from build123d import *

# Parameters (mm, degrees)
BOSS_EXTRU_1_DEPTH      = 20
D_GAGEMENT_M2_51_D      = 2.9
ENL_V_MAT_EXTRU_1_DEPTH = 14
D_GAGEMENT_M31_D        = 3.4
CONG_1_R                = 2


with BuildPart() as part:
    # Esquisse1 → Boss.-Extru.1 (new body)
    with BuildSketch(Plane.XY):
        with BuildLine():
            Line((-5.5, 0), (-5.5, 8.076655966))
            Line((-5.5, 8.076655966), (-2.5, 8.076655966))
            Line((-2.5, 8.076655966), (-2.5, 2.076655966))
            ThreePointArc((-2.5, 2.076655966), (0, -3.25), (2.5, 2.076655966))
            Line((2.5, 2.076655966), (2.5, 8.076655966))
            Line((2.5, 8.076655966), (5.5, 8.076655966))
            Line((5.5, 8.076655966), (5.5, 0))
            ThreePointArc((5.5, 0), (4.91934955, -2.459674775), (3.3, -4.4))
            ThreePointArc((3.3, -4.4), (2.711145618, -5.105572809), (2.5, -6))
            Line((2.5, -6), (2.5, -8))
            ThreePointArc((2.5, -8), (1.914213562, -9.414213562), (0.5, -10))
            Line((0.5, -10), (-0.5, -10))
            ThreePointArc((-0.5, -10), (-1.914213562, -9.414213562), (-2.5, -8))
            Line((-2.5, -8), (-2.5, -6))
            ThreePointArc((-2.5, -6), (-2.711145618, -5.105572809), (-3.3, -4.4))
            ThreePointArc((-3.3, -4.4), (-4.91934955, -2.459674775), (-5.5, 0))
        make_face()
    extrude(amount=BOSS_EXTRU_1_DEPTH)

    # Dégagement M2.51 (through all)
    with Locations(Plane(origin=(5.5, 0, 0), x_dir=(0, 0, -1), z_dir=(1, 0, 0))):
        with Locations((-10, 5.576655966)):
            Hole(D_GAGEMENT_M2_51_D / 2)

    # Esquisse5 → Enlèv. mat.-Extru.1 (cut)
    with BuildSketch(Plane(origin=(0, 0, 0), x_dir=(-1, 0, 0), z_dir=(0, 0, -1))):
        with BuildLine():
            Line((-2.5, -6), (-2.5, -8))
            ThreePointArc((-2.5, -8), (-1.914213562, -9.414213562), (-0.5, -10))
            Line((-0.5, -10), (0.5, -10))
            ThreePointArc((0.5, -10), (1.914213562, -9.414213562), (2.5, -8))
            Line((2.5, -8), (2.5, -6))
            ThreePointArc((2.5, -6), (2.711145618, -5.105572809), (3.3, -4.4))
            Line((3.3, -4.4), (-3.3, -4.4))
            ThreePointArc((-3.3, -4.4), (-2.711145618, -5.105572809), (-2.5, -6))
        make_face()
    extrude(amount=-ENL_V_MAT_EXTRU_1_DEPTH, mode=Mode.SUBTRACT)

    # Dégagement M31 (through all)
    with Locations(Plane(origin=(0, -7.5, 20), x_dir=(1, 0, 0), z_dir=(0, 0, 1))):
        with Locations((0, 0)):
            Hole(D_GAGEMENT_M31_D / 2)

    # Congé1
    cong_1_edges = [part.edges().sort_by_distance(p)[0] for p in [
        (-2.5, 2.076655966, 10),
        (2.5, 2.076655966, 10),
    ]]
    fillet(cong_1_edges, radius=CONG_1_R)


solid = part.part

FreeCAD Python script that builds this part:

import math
import FreeCAD as App
import Part
import Sketcher
Q = App.Units.Quantity


def edges_at(feature, points):
    """Names of the edges that pass closest to the given points."""
    edges = feature.Shape.Edges
    near = lambda p: min(range(len(edges)), key=lambda i: edges[i].distToShape(Part.Vertex(*p))[0])
    return sorted({f"Edge{near(p) + 1}" for p in points})

doc = App.newDocument("Part")
params = doc.addObject("Spreadsheet::Sheet", "Params")
for row, (alias, value) in enumerate([
    ("sketch1_radius", "2 mm"),
    ("sketch1_radius2", "5.5 mm"),
    ("sketch1_width", "1 mm"),
    ("sketch1_height", "2 mm"),
    ("sketch1_height2", "6 mm"),
    ("pad1_length", "20 mm"),
    ("sketch2_diameter", "2.9 mm"),
    ("hole_diameter", "2.9 mm"),
    ("sketch3_radius", "2 mm"),
    ("sketch3_width", "1 mm"),
    ("sketch3_height", "2 mm"),
    ("sketch3_width2", "6.6 mm"),
    ("pocket1_length", "14 mm"),
    ("sketch4_diameter", "3.4 mm"),
    ("hole2_diameter", "3.4 mm"),
    ("fillet_radius", "2 mm"),
], start=1):
    params.set(f"A{row}", alias)
    params.set(f"B{row}", "=" + value)
    params.setAlias(f"B{row}", alias)

body = doc.addObject("PartDesign::Body", "Body")

# Sketch on XY plane
sketch1 = body.newObject("Sketcher::SketchObject", "Sketch")
sketch1.AttachmentSupport = (doc.getObject("XY_Plane"), [""])
sketch1.MapMode = "FlatFace"
sketch1.addGeometry([
    Part.LineSegment(App.Vector(-5.5, 8.1, 0), App.Vector(-5.5, 0, 0)),  # 0
    Part.ArcOfCircle(Part.Circle(App.Vector(0, 0, 0), App.Vector(0, 0, 1), 5.5), math.radians(-180), math.radians(-127)),  # 1
    Part.ArcOfCircle(Part.Circle(App.Vector(-4.5, -6, 0), App.Vector(0, 0, 1), 2), math.radians(0), math.radians(53)),  # 2
    Part.LineSegment(App.Vector(-2.5, -6, 0), App.Vector(-2.5, -8, 0)),  # 3
    Part.ArcOfCircle(Part.Circle(App.Vector(-0.5, -8, 0), App.Vector(0, 0, 1), 2), math.radians(-180), math.radians(-90)),  # 4
    Part.LineSegment(App.Vector(-0.5, -10, 0), App.Vector(0.5, -10, 0)),  # 5
    Part.ArcOfCircle(Part.Circle(App.Vector(0.5, -8, 0), App.Vector(0, 0, 1), 2), math.radians(-90), math.radians(0)),  # 6
    Part.LineSegment(App.Vector(2.5, -8, 0), App.Vector(2.5, -6, 0)),  # 7
    Part.ArcOfCircle(Part.Circle(App.Vector(4.5, -6, 0), App.Vector(0, 0, 1), 2), math.radians(127), math.radians(180)),  # 8
    Part.ArcOfCircle(Part.Circle(App.Vector(0, 0, 0), App.Vector(0, 0, 1), 5.5), math.radians(-53), math.radians(0)),  # 9
    Part.LineSegment(App.Vector(5.5, 0, 0), App.Vector(5.5, 8.1, 0)),  # 10
    Part.LineSegment(App.Vector(5.5, 8.1, 0), App.Vector(2.5, 8.1, 0)),  # 11
    Part.LineSegment(App.Vector(2.5, 8.1, 0), App.Vector(2.5, 2.1, 0)),  # 12
    Part.ArcOfCircle(Part.Circle(App.Vector(0, 0, 0), App.Vector(0, 0, 1), 3.2), math.radians(140), math.radians(400)),  # 13
    Part.LineSegment(App.Vector(-2.5, 2.1, 0), App.Vector(-2.5, 8.1, 0)),  # 14
    Part.LineSegment(App.Vector(-2.5, 8.1, 0), App.Vector(-5.5, 8.1, 0)),  # 15
], False)
sketch1.addConstraint([
    Sketcher.Constraint("Tangent", 0, 2, 1, 1),
    Sketcher.Constraint("Tangent", 1, 2, 2, 2),
    Sketcher.Constraint("Tangent", 2, 1, 3, 1),
    Sketcher.Constraint("Tangent", 3, 2, 4, 1),
    Sketcher.Constraint("Tangent", 4, 2, 5, 1),
    Sketcher.Constraint("Tangent", 5, 2, 6, 1),
    Sketcher.Constraint("Tangent", 6, 2, 7, 1),
    Sketcher.Constraint("Tangent", 7, 2, 8, 2),
    Sketcher.Constraint("Tangent", 8, 1, 9, 1),
    Sketcher.Constraint("Tangent", 9, 2, 10, 1),
    Sketcher.Constraint("Coincident", 10, 2, 11, 1),
    Sketcher.Constraint("Coincident", 11, 2, 12, 1),
    Sketcher.Constraint("Coincident", 12, 2, 13, 2),
    Sketcher.Constraint("Coincident", 13, 1, 14, 1),
    Sketcher.Constraint("Coincident", 14, 2, 15, 1),
    Sketcher.Constraint("Coincident", 15, 2, 0, 1),
    Sketcher.Constraint("Vertical", 0),
    Sketcher.Constraint("Vertical", 3),
    Sketcher.Constraint("Horizontal", 5),
    Sketcher.Constraint("Vertical", 7),
    Sketcher.Constraint("Vertical", 10),
    Sketcher.Constraint("Horizontal", 11),
    Sketcher.Constraint("Vertical", 12),
    Sketcher.Constraint("Vertical", 14),
    Sketcher.Constraint("Horizontal", 15),
    Sketcher.Constraint("Coincident", 1, 3, -1, 1),
    Sketcher.Constraint("Coincident", 9, 3, -1, 1),
    Sketcher.Constraint("Coincident", 13, 3, -1, 1),
    Sketcher.Constraint("Equal", 2, 4),
    Sketcher.Constraint("Equal", 4, 6),
    Sketcher.Constraint("Equal", 6, 8),
    Sketcher.Constraint("Equal", 1, 9),
    Sketcher.Constraint("Symmetric", 11, 2, 14, 2, -2),
    Sketcher.Constraint("Horizontal", 2, 3, 8, 3),
    Sketcher.Constraint("Vertical", 7, 2, 11, 2),
    Sketcher.Constraint("Radius", 2, Q("2 mm")),
    Sketcher.Constraint("Radius", 1, Q("5.5 mm")),
    Sketcher.Constraint("DistanceX", 5, 1, 5, 2, Q("1 mm")),
    Sketcher.Constraint("DistanceY", 3, 2, 3, 1, Q("2 mm")),
    Sketcher.Constraint("DistanceY", 12, 2, 12, 1, Q("6 mm")),
    Sketcher.Constraint("Radius", 13, Q("3.25 mm")),
])
sketch1.setExpression("Constraints[35]", "Params.sketch1_radius")
sketch1.setExpression("Constraints[36]", "Params.sketch1_radius2")
sketch1.setExpression("Constraints[37]", "Params.sketch1_width")
sketch1.setExpression("Constraints[38]", "Params.sketch1_height")
sketch1.setExpression("Constraints[39]", "Params.sketch1_height2")
pad1 = body.newObject("PartDesign::Pad", "Pad")
pad1.Profile = sketch1
pad1.setExpression("Length", "Params.pad1_length")

# Sketch on YZ plane
sketch2 = body.newObject("Sketcher::SketchObject", "Sketch001")
sketch2.AttachmentSupport = (doc.getObject("YZ_Plane"), [""])
sketch2.MapMode = "FlatFace"
sketch2.AttachmentOffset = App.Placement(App.Vector(0, 0, 5.5), App.Rotation())
sketch2.addGeometry(Part.Circle(App.Vector(5.6, 10, 0), App.Vector(0, 0, 1), 1.4), False)
sketch2.addConstraint([
    Sketcher.Constraint("Diameter", 0, Q("2.9 mm")),
    Sketcher.Constraint("DistanceY", -1, 1, 0, 3, Q("10 mm")),
    Sketcher.Constraint("DistanceX", -1, 1, 0, 3, Q("5.576656 mm")),
])
sketch2.setExpression("Constraints[0]", "Params.sketch2_diameter")
doc.recompute()
hole = body.newObject("PartDesign::Hole", "Hole")
hole.Profile = sketch2
hole.ThreadType = "None"
hole.setExpression("Diameter", "Params.hole_diameter")
hole.DepthType = "ThroughAll"

# Sketch on XY plane
sketch3 = body.newObject("Sketcher::SketchObject", "Sketch002")
sketch3.AttachmentSupport = (doc.getObject("XY_Plane"), [""])
sketch3.MapMode = "FlatFace"
sketch3.addGeometry([
    Part.LineSegment(App.Vector(2.5, -6, 0), App.Vector(2.5, -8, 0)),  # 0
    Part.ArcOfCircle(Part.Circle(App.Vector(0.5, -8, 0), App.Vector(0, 0, 1), 2), math.radians(-90), math.radians(0)),  # 1
    Part.LineSegment(App.Vector(0.5, -10, 0), App.Vector(-0.5, -10, 0)),  # 2
    Part.ArcOfCircle(Part.Circle(App.Vector(-0.5, -8, 0), App.Vector(0, 0, 1), 2), math.radians(-180), math.radians(-90)),  # 3
    Part.LineSegment(App.Vector(-2.5, -8, 0), App.Vector(-2.5, -6, 0)),  # 4
    Part.ArcOfCircle(Part.Circle(App.Vector(-4.5, -6, 0), App.Vector(0, 0, 1), 2), math.radians(0), math.radians(53)),  # 5
    Part.LineSegment(App.Vector(-3.3, -4.4, 0), App.Vector(3.3, -4.4, 0)),  # 6
    Part.ArcOfCircle(Part.Circle(App.Vector(4.5, -6, 0), App.Vector(0, 0, 1), 2), math.radians(127), math.radians(180)),  # 7
], False)
sketch3.addConstraint([
    Sketcher.Constraint("Tangent", 0, 2, 1, 2),
    Sketcher.Constraint("Tangent", 1, 1, 2, 1),
    Sketcher.Constraint("Tangent", 2, 2, 3, 2),
    Sketcher.Constraint("Tangent", 3, 1, 4, 1),
    Sketcher.Constraint("Tangent", 4, 2, 5, 1),
    Sketcher.Constraint("Coincident", 5, 2, 6, 1),
    Sketcher.Constraint("Coincident", 6, 2, 7, 1),
    Sketcher.Constraint("Tangent", 7, 2, 0, 1),
    Sketcher.Constraint("Vertical", 0),
    Sketcher.Constraint("Horizontal", 2),
    Sketcher.Constraint("Vertical", 4),
    Sketcher.Constraint("Horizontal", 6),
    Sketcher.Constraint("Equal", 1, 3),
    Sketcher.Constraint("Equal", 3, 5),
    Sketcher.Constraint("Equal", 5, 7),
    Sketcher.Constraint("Symmetric", 5, 3, 7, 3, -2),
    Sketcher.Constraint("Radius", 1, Q("2 mm")),
    Sketcher.Constraint("DistanceX", 2, 2, 2, 1, Q("1 mm")),
    Sketcher.Constraint("DistanceY", 0, 2, 0, 1, Q("2 mm")),
    Sketcher.Constraint("DistanceX", 6, 1, 6, 2, Q("6.6 mm")),
    Sketcher.Constraint("DistanceY", 1, 3, -1, 1, Q("8 mm")),
])
sketch3.setExpression("Constraints[16]", "Params.sketch3_radius")
sketch3.setExpression("Constraints[17]", "Params.sketch3_width")
sketch3.setExpression("Constraints[18]", "Params.sketch3_height")
sketch3.setExpression("Constraints[19]", "Params.sketch3_width2")
pocket1 = body.newObject("PartDesign::Pocket", "Pocket")
pocket1.Profile = sketch3
pocket1.setExpression("Length", "Params.pocket1_length")
pocket1.Reversed = True

# Sketch on XY plane
sketch4 = body.newObject("Sketcher::SketchObject", "Sketch003")
sketch4.AttachmentSupport = (doc.getObject("XY_Plane"), [""])
sketch4.MapMode = "FlatFace"
sketch4.AttachmentOffset = App.Placement(App.Vector(0, 0, 20), App.Rotation())
sketch4.addGeometry(Part.Circle(App.Vector(0, -7.5, 0), App.Vector(0, 0, 1), 1.7), False)
sketch4.addConstraint([
    Sketcher.Constraint("PointOnObject", 0, 3, -2),
    Sketcher.Constraint("Diameter", 0, Q("3.4 mm")),
    Sketcher.Constraint("DistanceY", 0, 3, -1, 1, Q("7.5 mm")),
])
sketch4.setExpression("Constraints[1]", "Params.sketch4_diameter")
doc.recompute()
hole2 = body.newObject("PartDesign::Hole", "Hole001")
hole2.Profile = sketch4
hole2.ThreadType = "None"
hole2.setExpression("Diameter", "Params.hole2_diameter")
hole2.DepthType = "ThroughAll"
doc.recompute()

fillet = body.newObject("PartDesign::Fillet", "Fillet")
fillet.Base = (hole2, edges_at(hole2, [(-2.5, 2.077, 10), (2.5, 2.077, 10)]))
fillet.setExpression("Radius", "Params.fillet_radius")

doc.recompute()
